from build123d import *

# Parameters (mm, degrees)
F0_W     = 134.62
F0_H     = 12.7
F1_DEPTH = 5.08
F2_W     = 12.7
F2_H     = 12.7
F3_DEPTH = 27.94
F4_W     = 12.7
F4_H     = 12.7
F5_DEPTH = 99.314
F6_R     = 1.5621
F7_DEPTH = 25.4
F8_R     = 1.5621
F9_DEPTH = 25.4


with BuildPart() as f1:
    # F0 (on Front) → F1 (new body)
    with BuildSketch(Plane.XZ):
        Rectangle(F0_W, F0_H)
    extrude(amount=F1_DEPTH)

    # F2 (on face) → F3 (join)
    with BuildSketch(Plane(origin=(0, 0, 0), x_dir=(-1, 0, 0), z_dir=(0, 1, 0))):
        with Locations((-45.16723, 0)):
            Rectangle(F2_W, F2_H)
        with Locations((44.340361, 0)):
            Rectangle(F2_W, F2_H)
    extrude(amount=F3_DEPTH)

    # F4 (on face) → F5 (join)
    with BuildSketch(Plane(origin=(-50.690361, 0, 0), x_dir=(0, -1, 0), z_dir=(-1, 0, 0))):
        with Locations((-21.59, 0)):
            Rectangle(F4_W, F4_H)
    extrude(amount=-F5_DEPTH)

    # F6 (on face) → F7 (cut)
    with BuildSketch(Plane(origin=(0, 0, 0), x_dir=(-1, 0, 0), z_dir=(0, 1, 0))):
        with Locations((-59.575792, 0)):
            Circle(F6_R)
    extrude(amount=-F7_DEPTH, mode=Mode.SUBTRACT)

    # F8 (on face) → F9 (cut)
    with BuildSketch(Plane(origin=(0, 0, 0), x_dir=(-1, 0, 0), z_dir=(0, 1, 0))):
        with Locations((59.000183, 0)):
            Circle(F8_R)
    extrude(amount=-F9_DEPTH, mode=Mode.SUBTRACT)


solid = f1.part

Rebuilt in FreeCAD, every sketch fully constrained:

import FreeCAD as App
import Part
import Sketcher
from FreeCAD import Vector
Q = App.Units.Quantity

doc = App.newDocument("Part")
params = doc.addObject("Spreadsheet::Sheet", "Params")
for row, (alias, value) in enumerate([
    ("sketch1_width", "5.3 in"),
    ("sketch1_height", "0.5 in"),
    ("pad1_length", "0.2 in"),
    ("sketch2_width", "0.5 in"),
    ("pad2_length", "1.1 in"),
    ("sketch3_width", "0.5 in"),
    ("pad3_length", "3.91 in"),
    ("sketch4_diameter", "0.123 in"),
    ("pocket1_length", "1 in"),
    ("sketch5_diameter", "0.123 in"),
    ("pocket2_length", "1 in"),
], start=1):
    params.set(f"A{row}", alias)
    params.set(f"B{row}", "=" + value)
    params.setAlias(f"B{row}", alias)

body = doc.addObject("PartDesign::Body", "Body")

# Sketch on XZ plane
sketch1 = body.newObject("Sketcher::SketchObject", "Sketch")
sketch1.AttachmentSupport = (doc.getObject("XZ_Plane"), [""])
sketch1.MapMode = "FlatFace"
sketch1.addGeometry(Part.LineSegment(Vector(-67, 6, 0), Vector(-67, -6, 0)), False)
sketch1.addGeometry(Part.LineSegment(Vector(-67, -6, 0), Vector(67, -6, 0)), False)
sketch1.addGeometry(Part.LineSegment(Vector(67, -6, 0), Vector(67, 6, 0)), False)
sketch1.addGeometry(Part.LineSegment(Vector(67, 6, 0), Vector(-67, 6, 0)), False)
sketch1.addConstraint(Sketcher.Constraint("Coincident", 0, 2, 1, 1))
sketch1.addConstraint(Sketcher.Constraint("Coincident", 1, 2, 2, 1))
sketch1.addConstraint(Sketcher.Constraint("Coincident", 2, 2, 3, 1))
sketch1.addConstraint(Sketcher.Constraint("Coincident", 3, 2, 0, 1))
sketch1.addConstraint(Sketcher.Constraint("Vertical", 0))
sketch1.addConstraint(Sketcher.Constraint("Horizontal", 1))
sketch1.addConstraint(Sketcher.Constraint("Vertical", 2))
sketch1.addConstraint(Sketcher.Constraint("Horizontal", 3))
sketch1.addConstraint(Sketcher.Constraint("Symmetric", 0, 2, 2, 2, -1, 1))
sketch1.addConstraint(Sketcher.Constraint("DistanceX", 1, 1, 1, 2, Q("5.3 in")))
sketch1.addConstraint(Sketcher.Constraint("DistanceY", 0, 2, 0, 1, Q("0.5 in")))
sketch1.setExpression("Constraints[9]", "Params.sketch1_width")
sketch1.setExpression("Constraints[10]", "Params.sketch1_height")
pad1 = body.newObject("PartDesign::Pad", "Pad")
pad1.Profile = sketch1
pad1.setExpression("Length", "Params.pad1_length")

# Sketch on XZ plane
sketch2 = body.newObject("Sketcher::SketchObject", "Sketch001")
sketch2.AttachmentSupport = (doc.getObject("XZ_Plane"), [""])
sketch2.MapMode = "FlatFace"
sketch2.addGeometry(Part.LineSegment(Vector(52, 6, 0), Vector(52, -6, 0)), False)
sketch2.addGeometry(Part.LineSegment(Vector(52, -6, 0), Vector(39, -6, 0)), False)
sketch2.addGeometry(Part.LineSegment(Vector(39, -6, 0), Vector(39, 6, 0)), False)
sketch2.addGeometry(Part.LineSegment(Vector(39, 6, 0), Vector(52, 6, 0)), False)
sketch2.addGeometry(Part.LineSegment(Vector(-38, 6, 0), Vector(-38, -6, 0)), False)
sketch2.addGeometry(Part.LineSegment(Vector(-38, -6, 0), Vector(-51, -6, 0)), False)
sketch2.addGeometry(Part.LineSegment(Vector(-51, -6, 0), Vector(-51, 6, 0)), False)
sketch2.addGeometry(Part.LineSegment(Vector(-51, 6, 0), Vector(-38, 6, 0)), False)
sketch2.addConstraint(Sketcher.Constraint("Coincident", 0, 2, 1, 1))
sketch2.addConstraint(Sketcher.Constraint("Coincident", 1, 2, 2, 1))
sketch2.addConstraint(Sketcher.Constraint("Coincident", 2, 2, 3, 1))
sketch2.addConstraint(Sketcher.Constraint("Coincident", 3, 2, 0, 1))
sketch2.addConstraint(Sketcher.Constraint("Coincident", 4, 2, 5, 1))
sketch2.addConstraint(Sketcher.Constraint("Coincident", 5, 2, 6, 1))
sketch2.addConstraint(Sketcher.Constraint("Coincident", 6, 2, 7, 1))
sketch2.addConstraint(Sketcher.Constraint("Coincident", 7, 2, 4, 1))
sketch2.addConstraint(Sketcher.Constraint("Vertical", 0))
sketch2.addConstraint(Sketcher.Constraint("Horizontal", 1))
sketch2.addConstraint(Sketcher.Constraint("Vertical", 2))
sketch2.addConstraint(Sketcher.Constraint("Horizontal", 3))
sketch2.addConstraint(Sketcher.Constraint("Vertical", 4))
sketch2.addConstraint(Sketcher.Constraint("Horizontal", 5))
sketch2.addConstraint(Sketcher.Constraint("Vertical", 6))
sketch2.addConstraint(Sketcher.Constraint("Horizontal", 7))
sketch2.addConstraint(Sketcher.Constraint("Horizontal", 1, 2, 4, 2))
sketch2.addConstraint(Sketcher.Constraint("Horizontal", 3, 2, 6, 2))
sketch2.addConstraint(Sketcher.Constraint("Equal", 3, 5))
sketch2.addConstraint(Sketcher.Constraint("Equal", 7, 0))
sketch2.addConstraint(Sketcher.Constraint("DistanceX", 1, 2, 1, 1, Q("0.5 in")))
sketch2.addConstraint(Sketcher.Constraint("DistanceY", 0, 2, -1, 1, Q("0.25 in")))
sketch2.addConstraint(Sketcher.Constraint("DistanceX", -1, 1, 0, 2, 51.51723))
sketch2.addConstraint(Sketcher.Constraint("DistanceX", 4, 2, -1, 1, 37.990361))
sketch2.setExpression("Constraints[20]", "Params.sketch2_width")
pad2 = body.newObject("PartDesign::Pad", "Pad001")
pad2.Profile = sketch2
pad2.setExpression("Length", "Params.pad2_length")
pad2.Reversed = True

# Sketch on YZ plane
sketch3 = body.newObject("Sketcher::SketchObject", "Sketch002")
sketch3.AttachmentSupport = (doc.getObject("YZ_Plane"), [""])
sketch3.MapMode = "FlatFace"
sketch3.AttachmentOffset = App.Placement(Vector(0, 0, -50.690361), App.Rotation())
sketch3.addGeometry(Part.LineSegment(Vector(28, 6, 0), Vector(28, -6, 0)), False)
sketch3.addGeometry(Part.LineSegment(Vector(28, -6, 0), Vector(15, -6, 0)), False)
sketch3.addGeometry(Part.LineSegment(Vector(15, -6, 0), Vector(15, 6, 0)), False)
sketch3.addGeometry(Part.LineSegment(Vector(15, 6, 0), Vector(28, 6, 0)), False)
sketch3.addConstraint(Sketcher.Constraint("Coincident", 0, 2, 1, 1))
sketch3.addConstraint(Sketcher.Constraint("Coincident", 1, 2, 2, 1))
sketch3.addConstraint(Sketcher.Constraint("Coincident", 2, 2, 3, 1))
sketch3.addConstraint(Sketcher.Constraint("Coincident", 3, 2, 0, 1))
sketch3.addConstraint(Sketcher.Constraint("Vertical", 0))
sketch3.addConstraint(Sketcher.Constraint("Horizontal", 1))
sketch3.addConstraint(Sketcher.Constraint("Vertical", 2))
sketch3.addConstraint(Sketcher.Constraint("Horizontal", 3))
sketch3.addConstraint(Sketcher.Constraint("Equal", 3, 0))
sketch3.addConstraint(Sketcher.Constraint("DistanceX", 1, 2, 1, 1, Q("0.5 in")))
sketch3.addConstraint(Sketcher.Constraint("DistanceX", -1, 1, 0, 2, Q("1.1 in")))
sketch3.addConstraint(Sketcher.Constraint("DistanceY", 0, 2, -1, 1, Q("0.25 in")))
sketch3.setExpression("Constraints[9]", "Params.sketch3_width")
pad3 = body.newObject("PartDesign::Pad", "Pad002")
pad3.Profile = sketch3
pad3.setExpression("Length", "Params.pad3_length")

# Sketch on XZ plane
sketch4 = body.newObject("Sketcher::SketchObject", "Sketch003")
sketch4.AttachmentSupport = (doc.getObject("XZ_Plane"), [""])
sketch4.MapMode = "FlatFace"
sketch4.addGeometry(Part.Circle(Vector(59.6, 0, 0), Vector(0, 0, 1), 1.6), False)
sketch4.addConstraint(Sketcher.Constraint("PointOnObject", 0, 3, -1))
sketch4.addConstraint(Sketcher.Constraint("Diameter", 0, Q("0.123 in")))
sketch4.addConstraint(Sketcher.Constraint("DistanceX", -1, 1, 0, 3, 59.575792))
sketch4.setExpression("Constraints[1]", "Params.sketch4_diameter")
pocket1 = body.newObject("PartDesign::Pocket", "Pocket")
pocket1.Profile = sketch4
pocket1.setExpression("Length", "Params.pocket1_length")
pocket1.Reversed = True

# Sketch on XZ plane
sketch5 = body.newObject("Sketcher::SketchObject", "Sketch004")
sketch5.AttachmentSupport = (doc.getObject("XZ_Plane"), [""])
sketch5.MapMode = "FlatFace"
sketch5.addGeometry(Part.Circle(Vector(-59, 0, 0), Vector(0, 0, 1), 1.6), False)
sketch5.addConstraint(Sketcher.Constraint("PointOnObject", 0, 3, -1))
sketch5.addConstraint(Sketcher.Constraint("Diameter", 0, Q("0.123 in")))
sketch5.addConstraint(Sketcher.Constraint("DistanceX", 0, 3, -1, 1, 59.000183))
sketch5.setExpression("Constraints[1]", "Params.sketch5_diameter")
pocket2 = body.newObject("PartDesign::Pocket", "Pocket001")
pocket2.Profile = sketch5
pocket2.setExpression("Length", "Params.pocket2_length")
pocket2.Reversed = True

doc.recompute()
